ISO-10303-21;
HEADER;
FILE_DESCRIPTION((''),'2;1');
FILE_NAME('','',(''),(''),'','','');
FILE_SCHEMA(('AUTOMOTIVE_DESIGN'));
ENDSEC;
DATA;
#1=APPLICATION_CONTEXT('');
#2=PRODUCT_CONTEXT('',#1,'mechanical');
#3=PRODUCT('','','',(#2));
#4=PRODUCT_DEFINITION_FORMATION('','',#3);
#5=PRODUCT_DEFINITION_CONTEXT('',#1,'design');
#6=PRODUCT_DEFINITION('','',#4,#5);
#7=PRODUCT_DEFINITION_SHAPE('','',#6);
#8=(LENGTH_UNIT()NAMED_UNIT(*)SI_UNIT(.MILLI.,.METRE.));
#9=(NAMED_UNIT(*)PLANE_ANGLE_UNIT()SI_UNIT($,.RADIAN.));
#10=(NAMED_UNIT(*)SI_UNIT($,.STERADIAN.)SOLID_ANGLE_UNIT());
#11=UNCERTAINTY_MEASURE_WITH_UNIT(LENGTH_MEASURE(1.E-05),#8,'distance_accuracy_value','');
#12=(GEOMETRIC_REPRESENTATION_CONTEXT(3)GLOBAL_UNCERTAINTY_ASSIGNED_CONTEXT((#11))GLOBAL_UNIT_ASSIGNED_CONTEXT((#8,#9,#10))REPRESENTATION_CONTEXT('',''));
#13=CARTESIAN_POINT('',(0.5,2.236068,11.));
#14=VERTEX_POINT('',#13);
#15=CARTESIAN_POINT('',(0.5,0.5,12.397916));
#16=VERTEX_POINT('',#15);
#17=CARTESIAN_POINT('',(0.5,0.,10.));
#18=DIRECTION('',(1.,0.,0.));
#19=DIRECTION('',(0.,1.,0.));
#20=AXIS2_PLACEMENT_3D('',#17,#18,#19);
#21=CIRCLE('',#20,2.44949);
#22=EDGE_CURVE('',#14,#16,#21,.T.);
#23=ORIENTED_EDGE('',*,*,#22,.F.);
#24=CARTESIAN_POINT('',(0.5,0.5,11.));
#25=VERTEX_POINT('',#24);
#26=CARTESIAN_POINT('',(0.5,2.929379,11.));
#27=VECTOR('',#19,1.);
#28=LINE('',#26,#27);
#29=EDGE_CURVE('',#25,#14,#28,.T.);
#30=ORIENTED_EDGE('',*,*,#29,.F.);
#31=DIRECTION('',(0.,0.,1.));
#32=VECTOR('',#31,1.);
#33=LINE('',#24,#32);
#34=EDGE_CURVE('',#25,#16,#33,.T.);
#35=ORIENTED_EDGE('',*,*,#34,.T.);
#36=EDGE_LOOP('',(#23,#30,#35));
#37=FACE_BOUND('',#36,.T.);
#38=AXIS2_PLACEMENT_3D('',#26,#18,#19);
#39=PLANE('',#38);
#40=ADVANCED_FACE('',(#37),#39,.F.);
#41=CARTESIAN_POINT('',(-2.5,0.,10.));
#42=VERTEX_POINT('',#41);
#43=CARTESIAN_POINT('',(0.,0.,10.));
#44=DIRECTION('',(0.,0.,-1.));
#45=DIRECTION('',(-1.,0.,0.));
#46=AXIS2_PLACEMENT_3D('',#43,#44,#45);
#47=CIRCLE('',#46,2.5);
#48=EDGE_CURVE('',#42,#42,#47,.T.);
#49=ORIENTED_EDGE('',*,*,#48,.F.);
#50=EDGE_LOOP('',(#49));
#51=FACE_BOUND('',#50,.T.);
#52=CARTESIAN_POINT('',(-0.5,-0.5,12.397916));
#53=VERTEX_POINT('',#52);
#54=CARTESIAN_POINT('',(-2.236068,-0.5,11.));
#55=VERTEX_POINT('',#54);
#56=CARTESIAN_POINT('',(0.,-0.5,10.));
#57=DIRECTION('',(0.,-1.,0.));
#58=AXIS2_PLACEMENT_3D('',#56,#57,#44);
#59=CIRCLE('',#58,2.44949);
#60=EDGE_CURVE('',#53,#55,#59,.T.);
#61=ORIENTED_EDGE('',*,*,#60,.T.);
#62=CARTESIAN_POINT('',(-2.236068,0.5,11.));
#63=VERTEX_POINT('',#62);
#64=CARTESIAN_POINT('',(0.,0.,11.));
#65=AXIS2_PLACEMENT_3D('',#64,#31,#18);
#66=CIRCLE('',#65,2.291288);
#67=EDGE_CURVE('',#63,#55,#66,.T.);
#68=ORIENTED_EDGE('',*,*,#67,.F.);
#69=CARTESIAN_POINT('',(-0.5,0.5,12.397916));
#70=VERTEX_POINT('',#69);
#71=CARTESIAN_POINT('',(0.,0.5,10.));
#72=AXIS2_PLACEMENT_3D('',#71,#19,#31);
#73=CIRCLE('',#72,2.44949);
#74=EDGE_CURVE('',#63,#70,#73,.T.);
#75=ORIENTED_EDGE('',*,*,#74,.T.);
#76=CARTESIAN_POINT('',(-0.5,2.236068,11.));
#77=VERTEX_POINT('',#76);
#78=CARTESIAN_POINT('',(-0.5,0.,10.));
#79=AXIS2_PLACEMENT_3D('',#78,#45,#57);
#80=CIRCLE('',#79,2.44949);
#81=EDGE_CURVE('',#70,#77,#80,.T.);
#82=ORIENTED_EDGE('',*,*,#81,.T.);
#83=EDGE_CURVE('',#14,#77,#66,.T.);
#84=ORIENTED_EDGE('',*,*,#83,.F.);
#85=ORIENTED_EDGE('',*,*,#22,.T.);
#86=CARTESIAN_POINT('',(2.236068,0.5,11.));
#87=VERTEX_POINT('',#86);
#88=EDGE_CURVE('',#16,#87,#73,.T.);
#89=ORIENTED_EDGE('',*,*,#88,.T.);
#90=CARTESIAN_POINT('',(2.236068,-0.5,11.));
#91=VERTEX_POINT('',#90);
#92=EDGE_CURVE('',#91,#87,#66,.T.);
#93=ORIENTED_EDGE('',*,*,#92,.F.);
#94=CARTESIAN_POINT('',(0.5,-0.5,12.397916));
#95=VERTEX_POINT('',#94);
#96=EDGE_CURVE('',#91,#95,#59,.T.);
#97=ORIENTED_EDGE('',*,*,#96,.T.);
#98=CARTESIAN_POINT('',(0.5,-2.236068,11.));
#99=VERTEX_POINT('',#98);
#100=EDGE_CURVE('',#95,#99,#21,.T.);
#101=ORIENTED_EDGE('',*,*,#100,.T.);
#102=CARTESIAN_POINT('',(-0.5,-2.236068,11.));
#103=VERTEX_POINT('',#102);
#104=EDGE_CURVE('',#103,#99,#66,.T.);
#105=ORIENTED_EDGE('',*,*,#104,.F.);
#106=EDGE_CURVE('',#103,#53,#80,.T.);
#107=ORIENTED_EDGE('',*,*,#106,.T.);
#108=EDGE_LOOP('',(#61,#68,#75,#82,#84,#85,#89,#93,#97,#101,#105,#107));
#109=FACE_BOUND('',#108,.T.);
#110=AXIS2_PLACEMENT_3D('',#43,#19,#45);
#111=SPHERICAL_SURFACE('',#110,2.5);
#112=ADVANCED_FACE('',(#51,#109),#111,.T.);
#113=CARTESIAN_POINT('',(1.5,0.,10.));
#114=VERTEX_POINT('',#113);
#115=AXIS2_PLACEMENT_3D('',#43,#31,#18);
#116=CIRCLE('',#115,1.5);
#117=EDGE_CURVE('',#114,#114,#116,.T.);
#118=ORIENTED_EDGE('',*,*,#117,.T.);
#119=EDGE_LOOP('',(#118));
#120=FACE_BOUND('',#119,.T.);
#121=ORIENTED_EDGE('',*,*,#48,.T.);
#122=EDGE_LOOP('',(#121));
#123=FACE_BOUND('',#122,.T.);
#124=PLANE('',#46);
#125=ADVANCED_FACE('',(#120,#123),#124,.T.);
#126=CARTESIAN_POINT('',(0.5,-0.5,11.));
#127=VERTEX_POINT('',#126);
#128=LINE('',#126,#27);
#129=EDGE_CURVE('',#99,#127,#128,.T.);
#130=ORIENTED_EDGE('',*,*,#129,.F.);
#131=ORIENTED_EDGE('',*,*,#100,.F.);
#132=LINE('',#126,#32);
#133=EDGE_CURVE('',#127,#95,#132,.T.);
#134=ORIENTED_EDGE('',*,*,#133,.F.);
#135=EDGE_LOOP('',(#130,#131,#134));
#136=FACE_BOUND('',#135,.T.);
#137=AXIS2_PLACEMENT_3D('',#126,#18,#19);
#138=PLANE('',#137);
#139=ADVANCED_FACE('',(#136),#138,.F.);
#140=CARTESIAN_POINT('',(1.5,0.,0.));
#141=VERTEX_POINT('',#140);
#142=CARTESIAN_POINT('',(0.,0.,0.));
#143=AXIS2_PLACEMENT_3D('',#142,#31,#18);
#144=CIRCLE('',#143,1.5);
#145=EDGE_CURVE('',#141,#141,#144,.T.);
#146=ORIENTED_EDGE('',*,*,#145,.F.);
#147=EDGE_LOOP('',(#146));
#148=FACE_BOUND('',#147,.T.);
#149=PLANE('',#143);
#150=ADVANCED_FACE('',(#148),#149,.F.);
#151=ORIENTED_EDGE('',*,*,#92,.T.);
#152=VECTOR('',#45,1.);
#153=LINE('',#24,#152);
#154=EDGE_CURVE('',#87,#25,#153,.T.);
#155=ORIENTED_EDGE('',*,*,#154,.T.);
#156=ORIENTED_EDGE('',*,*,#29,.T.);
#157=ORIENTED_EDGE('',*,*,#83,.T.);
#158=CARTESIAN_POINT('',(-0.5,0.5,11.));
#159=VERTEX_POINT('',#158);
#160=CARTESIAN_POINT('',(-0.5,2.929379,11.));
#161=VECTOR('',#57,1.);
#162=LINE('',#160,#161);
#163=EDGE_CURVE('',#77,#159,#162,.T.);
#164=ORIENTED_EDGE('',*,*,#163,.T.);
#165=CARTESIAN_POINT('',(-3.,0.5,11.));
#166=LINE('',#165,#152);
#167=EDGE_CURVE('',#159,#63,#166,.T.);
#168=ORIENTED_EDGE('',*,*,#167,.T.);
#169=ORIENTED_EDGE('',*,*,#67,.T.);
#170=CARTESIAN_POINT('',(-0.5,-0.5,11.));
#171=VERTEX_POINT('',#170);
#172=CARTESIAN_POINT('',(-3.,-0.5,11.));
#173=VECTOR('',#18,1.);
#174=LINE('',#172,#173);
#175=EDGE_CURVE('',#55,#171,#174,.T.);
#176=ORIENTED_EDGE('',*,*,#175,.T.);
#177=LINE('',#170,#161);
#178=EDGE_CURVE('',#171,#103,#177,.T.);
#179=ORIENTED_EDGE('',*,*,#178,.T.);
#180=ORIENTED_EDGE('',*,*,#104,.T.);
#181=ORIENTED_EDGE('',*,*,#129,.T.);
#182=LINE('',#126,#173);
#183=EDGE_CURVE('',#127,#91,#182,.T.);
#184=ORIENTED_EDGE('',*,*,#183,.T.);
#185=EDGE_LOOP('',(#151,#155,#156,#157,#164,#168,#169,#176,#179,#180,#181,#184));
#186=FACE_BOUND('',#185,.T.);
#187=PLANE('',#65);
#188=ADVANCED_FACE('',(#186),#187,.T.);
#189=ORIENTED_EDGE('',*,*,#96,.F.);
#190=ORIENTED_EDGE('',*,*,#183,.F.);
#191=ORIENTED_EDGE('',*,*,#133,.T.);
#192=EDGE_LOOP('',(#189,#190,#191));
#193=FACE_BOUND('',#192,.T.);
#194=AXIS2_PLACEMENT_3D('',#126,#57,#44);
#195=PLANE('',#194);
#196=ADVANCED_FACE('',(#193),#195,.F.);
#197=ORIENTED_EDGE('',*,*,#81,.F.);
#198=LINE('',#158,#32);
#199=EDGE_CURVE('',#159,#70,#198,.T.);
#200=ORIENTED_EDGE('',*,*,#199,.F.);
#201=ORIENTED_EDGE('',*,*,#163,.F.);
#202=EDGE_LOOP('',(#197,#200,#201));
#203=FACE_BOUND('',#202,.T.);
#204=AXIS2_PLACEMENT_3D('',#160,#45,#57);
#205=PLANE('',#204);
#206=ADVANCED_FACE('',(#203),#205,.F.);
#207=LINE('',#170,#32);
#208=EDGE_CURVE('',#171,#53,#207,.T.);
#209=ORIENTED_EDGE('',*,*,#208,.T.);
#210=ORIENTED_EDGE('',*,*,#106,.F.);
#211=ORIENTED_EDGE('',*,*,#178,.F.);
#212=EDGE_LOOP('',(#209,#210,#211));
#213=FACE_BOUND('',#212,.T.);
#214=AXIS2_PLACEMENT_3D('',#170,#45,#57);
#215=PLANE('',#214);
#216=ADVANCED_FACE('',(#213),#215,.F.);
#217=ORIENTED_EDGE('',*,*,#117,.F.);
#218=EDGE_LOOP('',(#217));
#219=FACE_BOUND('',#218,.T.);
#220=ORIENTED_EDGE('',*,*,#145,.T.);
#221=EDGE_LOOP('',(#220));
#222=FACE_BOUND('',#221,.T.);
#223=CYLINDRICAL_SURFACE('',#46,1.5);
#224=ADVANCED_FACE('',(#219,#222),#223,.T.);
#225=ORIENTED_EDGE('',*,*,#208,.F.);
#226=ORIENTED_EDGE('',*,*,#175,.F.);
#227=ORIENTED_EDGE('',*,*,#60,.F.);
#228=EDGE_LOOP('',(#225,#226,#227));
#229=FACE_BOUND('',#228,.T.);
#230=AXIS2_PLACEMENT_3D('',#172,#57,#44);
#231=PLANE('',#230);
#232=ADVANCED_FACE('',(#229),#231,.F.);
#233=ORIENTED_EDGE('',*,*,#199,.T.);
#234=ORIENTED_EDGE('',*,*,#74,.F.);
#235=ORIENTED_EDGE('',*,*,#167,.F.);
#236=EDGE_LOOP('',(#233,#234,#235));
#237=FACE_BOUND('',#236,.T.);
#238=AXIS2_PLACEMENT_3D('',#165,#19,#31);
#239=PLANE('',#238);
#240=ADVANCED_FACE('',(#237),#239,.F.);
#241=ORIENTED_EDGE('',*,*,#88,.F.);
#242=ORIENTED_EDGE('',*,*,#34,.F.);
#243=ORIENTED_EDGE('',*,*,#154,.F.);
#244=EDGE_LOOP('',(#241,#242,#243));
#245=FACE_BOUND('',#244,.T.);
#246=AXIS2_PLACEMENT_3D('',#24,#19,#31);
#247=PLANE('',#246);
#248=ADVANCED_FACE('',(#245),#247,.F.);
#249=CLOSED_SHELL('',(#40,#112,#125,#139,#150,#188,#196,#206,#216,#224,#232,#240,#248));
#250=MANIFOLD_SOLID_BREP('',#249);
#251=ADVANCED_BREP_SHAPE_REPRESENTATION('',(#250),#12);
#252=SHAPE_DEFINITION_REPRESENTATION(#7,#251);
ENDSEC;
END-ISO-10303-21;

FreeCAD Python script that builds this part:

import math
import FreeCAD as App
import Part
import Sketcher
from FreeCAD import Vector

doc = App.newDocument("Part")
body = doc.addObject("PartDesign::Body", "Body")

sketch1 = doc.addObject("Sketcher::SketchObject", "Sketch")
body.addObject(sketch1)
sketch1.AttachmentSupport = (doc.XY_Plane, [""])
sketch1.MapMode = "FlatFace"
sketch1.addGeometry(Part.Circle(Vector(0, 0, 0), Vector(0, 0, 1), 1.5), False)
sketch1.addConstraint(Sketcher.Constraint("Coincident", 0, 3, -1, 1))
sketch1.addConstraint(Sketcher.Constraint("Diameter", 0, 3.0))
pad1 = doc.addObject("PartDesign::Pad", "Pad")
body.addObject(pad1)
pad1.Profile = sketch1
pad1.Length = 10

sketch2 = doc.addObject("Sketcher::SketchObject", "Sketch001")
body.addObject(sketch2)
sketch2.AttachmentSupport = (doc.XY_Plane, [""])
sketch2.MapMode = "FlatFace"
sketch2.AttachmentOffset = App.Placement(Vector(0, 0, 10), App.Rotation())
sketch2.addGeometry(Part.LineSegment(Vector(0, 2.5, 0), Vector(0, -2.5, 0)), False)
sketch2.addGeometry(Part.ArcOfCircle(Part.Circle(Vector(0, 0, 0), Vector(0, 0, 1), 2.5), math.radians(-90), math.radians(90)), False)
sketch2.addConstraint(Sketcher.Constraint("Coincident", 0, 1, 1, 2))
sketch2.addConstraint(Sketcher.Constraint("Coincident", 1, 1, 0, 2))
sketch2.addConstraint(Sketcher.Constraint("Vertical", 0))
sketch2.addConstraint(Sketcher.Constraint("Coincident", 1, 3, -1, 1))
sketch2.addConstraint(Sketcher.Constraint("PointOnObject", 0, 1, -2))
sketch2.addConstraint(Sketcher.Constraint("Radius", 1, 2.5))
revolution = doc.addObject("PartDesign::Revolution", "Revolution")
body.addObject(revolution)
revolution.Profile = sketch2
revolution.ReferenceAxis = (sketch2, ["V_Axis"])
revolution.Angle = 180
revolution.Reversed = True

sketch3 = doc.addObject("Sketcher::SketchObject", "Sketch002")
body.addObject(sketch3)
sketch3.AttachmentSupport = (doc.XY_Plane, [""])
sketch3.MapMode = "FlatFace"
sketch3.AttachmentOffset = App.Placement(Vector(0, 0, 13), App.Rotation())
sketch3.addGeometry(Part.LineSegment(Vector(3, 0.5, 0), Vector(0.5, 0.5, 0)), False)
sketch3.addGeometry(Part.LineSegment(Vector(0.5, 0.5, 0), Vector(0.5, 2.9, 0)), False)
sketch3.addGeometry(Part.LineSegment(Vector(0.5, 2.9, 0), Vector(-0.5, 2.9, 0)), False)
sketch3.addGeometry(Part.LineSegment(Vector(-0.5, 2.9, 0), Vector(-0.5, 0.5, 0)), False)
sketch3.addGeometry(Part.LineSegment(Vector(-0.5, 0.5, 0), Vector(-3, 0.5, 0)), False)
sketch3.addGeometry(Part.LineSegment(Vector(-3, 0.5, 0), Vector(-3, -0.5, 0)), False)
sketch3.addGeometry(Part.LineSegment(Vector(-3, -0.5, 0), Vector(-0.5, -0.5, 0)), False)
sketch3.addGeometry(Part.LineSegment(Vector(-0.5, -0.5, 0), Vector(-0.5, -3.1, 0)), False)
sketch3.addGeometry(Part.LineSegment(Vector(-0.5, -3.1, 0), Vector(0.5, -3.1, 0)), False)
sketch3.addGeometry(Part.LineSegment(Vector(0.5, -3.1, 0), Vector(0.5, -0.5, 0)), False)
sketch3.addGeometry(Part.LineSegment(Vector(0.5, -0.5, 0), Vector(3, -0.5, 0)), False)
sketch3.addGeometry(Part.LineSegment(Vector(3, -0.5, 0), Vector(3, 0.5, 0)), False)
sketch3.addConstraint(Sketcher.Constraint("Coincident", 0, 2, 1, 1))
sketch3.addConstraint(Sketcher.Constraint("Coincident", 1, 2, 2, 1))
sketch3.addConstraint(Sketcher.Constraint("Coincident", 2, 2, 3, 1))
sketch3.addConstraint(Sketcher.Constraint("Coincident", 3, 2, 4, 1))
sketch3.addConstraint(Sketcher.Constraint("Coincident", 4, 2, 5, 1))
sketch3.addConstraint(Sketcher.Constraint("Coincident", 5, 2, 6, 1))
sketch3.addConstraint(Sketcher.Constraint("Coincident", 6, 2, 7, 1))
sketch3.addConstraint(Sketcher.Constraint("Coincident", 7, 2, 8, 1))
sketch3.addConstraint(Sketcher.Constraint("Coincident", 8, 2, 9, 1))
sketch3.addConstraint(Sketcher.Constraint("Coincident", 9, 2, 10, 1))
sketch3.addConstraint(Sketcher.Constraint("Coincident", 10, 2, 11, 1))
sketch3.addConstraint(Sketcher.Constraint("Coincident", 11, 2, 0, 1))
sketch3.addConstraint(Sketcher.Constraint("Horizontal", 0))
sketch3.addConstraint(Sketcher.Constraint("Vertical", 1))
sketch3.addConstraint(Sketcher.Constraint("Horizontal", 2))
sketch3.addConstraint(Sketcher.Constraint("Vertical", 3))
sketch3.addConstraint(Sketcher.Constraint("Horizontal", 4))
sketch3.addConstraint(Sketcher.Constraint("Vertical", 5))
sketch3.addConstraint(Sketcher.Constraint("Horizontal", 6))
sketch3.addConstraint(Sketcher.Constraint("Vertical", 7))
sketch3.addConstraint(Sketcher.Constraint("Horizontal", 8))
sketch3.addConstraint(Sketcher.Constraint("Vertical", 9))
sketch3.addConstraint(Sketcher.Constraint("Horizontal", 10))
sketch3.addConstraint(Sketcher.Constraint("Vertical", 11))
sketch3.addConstraint(Sketcher.Constraint("Symmetric", 0, 2, 6, 2, -1, 1))
sketch3.addConstraint(Sketcher.Constraint("Symmetric", 3, 2, 9, 2, -1, 1))
sketch3.addConstraint(Sketcher.Constraint("Symmetric", 0, 2, 3, 2, -2))
sketch3.addConstraint(Sketcher.Constraint("Equal", 0, 4))
sketch3.addConstraint(Sketcher.Constraint("Equal", 8, 5))
sketch3.addConstraint(Sketcher.Constraint("DistanceX", 2, 2, 2, 1, 1.0))
sketch3.addConstraint(Sketcher.Constraint("DistanceX", 0, 2, 0, 1, 2.5))
sketch3.addConstraint(Sketcher.Constraint("DistanceY", 1, 1, 1, 2, 2.429379))
sketch3.addConstraint(Sketcher.Constraint("DistanceY", 7, 2, 7, 1, 2.570621))
pocket1 = doc.addObject("PartDesign::Pocket", "Pocket")
body.addObject(pocket1)
pocket1.Profile = sketch3
pocket1.Length = 2

doc.recompute()
